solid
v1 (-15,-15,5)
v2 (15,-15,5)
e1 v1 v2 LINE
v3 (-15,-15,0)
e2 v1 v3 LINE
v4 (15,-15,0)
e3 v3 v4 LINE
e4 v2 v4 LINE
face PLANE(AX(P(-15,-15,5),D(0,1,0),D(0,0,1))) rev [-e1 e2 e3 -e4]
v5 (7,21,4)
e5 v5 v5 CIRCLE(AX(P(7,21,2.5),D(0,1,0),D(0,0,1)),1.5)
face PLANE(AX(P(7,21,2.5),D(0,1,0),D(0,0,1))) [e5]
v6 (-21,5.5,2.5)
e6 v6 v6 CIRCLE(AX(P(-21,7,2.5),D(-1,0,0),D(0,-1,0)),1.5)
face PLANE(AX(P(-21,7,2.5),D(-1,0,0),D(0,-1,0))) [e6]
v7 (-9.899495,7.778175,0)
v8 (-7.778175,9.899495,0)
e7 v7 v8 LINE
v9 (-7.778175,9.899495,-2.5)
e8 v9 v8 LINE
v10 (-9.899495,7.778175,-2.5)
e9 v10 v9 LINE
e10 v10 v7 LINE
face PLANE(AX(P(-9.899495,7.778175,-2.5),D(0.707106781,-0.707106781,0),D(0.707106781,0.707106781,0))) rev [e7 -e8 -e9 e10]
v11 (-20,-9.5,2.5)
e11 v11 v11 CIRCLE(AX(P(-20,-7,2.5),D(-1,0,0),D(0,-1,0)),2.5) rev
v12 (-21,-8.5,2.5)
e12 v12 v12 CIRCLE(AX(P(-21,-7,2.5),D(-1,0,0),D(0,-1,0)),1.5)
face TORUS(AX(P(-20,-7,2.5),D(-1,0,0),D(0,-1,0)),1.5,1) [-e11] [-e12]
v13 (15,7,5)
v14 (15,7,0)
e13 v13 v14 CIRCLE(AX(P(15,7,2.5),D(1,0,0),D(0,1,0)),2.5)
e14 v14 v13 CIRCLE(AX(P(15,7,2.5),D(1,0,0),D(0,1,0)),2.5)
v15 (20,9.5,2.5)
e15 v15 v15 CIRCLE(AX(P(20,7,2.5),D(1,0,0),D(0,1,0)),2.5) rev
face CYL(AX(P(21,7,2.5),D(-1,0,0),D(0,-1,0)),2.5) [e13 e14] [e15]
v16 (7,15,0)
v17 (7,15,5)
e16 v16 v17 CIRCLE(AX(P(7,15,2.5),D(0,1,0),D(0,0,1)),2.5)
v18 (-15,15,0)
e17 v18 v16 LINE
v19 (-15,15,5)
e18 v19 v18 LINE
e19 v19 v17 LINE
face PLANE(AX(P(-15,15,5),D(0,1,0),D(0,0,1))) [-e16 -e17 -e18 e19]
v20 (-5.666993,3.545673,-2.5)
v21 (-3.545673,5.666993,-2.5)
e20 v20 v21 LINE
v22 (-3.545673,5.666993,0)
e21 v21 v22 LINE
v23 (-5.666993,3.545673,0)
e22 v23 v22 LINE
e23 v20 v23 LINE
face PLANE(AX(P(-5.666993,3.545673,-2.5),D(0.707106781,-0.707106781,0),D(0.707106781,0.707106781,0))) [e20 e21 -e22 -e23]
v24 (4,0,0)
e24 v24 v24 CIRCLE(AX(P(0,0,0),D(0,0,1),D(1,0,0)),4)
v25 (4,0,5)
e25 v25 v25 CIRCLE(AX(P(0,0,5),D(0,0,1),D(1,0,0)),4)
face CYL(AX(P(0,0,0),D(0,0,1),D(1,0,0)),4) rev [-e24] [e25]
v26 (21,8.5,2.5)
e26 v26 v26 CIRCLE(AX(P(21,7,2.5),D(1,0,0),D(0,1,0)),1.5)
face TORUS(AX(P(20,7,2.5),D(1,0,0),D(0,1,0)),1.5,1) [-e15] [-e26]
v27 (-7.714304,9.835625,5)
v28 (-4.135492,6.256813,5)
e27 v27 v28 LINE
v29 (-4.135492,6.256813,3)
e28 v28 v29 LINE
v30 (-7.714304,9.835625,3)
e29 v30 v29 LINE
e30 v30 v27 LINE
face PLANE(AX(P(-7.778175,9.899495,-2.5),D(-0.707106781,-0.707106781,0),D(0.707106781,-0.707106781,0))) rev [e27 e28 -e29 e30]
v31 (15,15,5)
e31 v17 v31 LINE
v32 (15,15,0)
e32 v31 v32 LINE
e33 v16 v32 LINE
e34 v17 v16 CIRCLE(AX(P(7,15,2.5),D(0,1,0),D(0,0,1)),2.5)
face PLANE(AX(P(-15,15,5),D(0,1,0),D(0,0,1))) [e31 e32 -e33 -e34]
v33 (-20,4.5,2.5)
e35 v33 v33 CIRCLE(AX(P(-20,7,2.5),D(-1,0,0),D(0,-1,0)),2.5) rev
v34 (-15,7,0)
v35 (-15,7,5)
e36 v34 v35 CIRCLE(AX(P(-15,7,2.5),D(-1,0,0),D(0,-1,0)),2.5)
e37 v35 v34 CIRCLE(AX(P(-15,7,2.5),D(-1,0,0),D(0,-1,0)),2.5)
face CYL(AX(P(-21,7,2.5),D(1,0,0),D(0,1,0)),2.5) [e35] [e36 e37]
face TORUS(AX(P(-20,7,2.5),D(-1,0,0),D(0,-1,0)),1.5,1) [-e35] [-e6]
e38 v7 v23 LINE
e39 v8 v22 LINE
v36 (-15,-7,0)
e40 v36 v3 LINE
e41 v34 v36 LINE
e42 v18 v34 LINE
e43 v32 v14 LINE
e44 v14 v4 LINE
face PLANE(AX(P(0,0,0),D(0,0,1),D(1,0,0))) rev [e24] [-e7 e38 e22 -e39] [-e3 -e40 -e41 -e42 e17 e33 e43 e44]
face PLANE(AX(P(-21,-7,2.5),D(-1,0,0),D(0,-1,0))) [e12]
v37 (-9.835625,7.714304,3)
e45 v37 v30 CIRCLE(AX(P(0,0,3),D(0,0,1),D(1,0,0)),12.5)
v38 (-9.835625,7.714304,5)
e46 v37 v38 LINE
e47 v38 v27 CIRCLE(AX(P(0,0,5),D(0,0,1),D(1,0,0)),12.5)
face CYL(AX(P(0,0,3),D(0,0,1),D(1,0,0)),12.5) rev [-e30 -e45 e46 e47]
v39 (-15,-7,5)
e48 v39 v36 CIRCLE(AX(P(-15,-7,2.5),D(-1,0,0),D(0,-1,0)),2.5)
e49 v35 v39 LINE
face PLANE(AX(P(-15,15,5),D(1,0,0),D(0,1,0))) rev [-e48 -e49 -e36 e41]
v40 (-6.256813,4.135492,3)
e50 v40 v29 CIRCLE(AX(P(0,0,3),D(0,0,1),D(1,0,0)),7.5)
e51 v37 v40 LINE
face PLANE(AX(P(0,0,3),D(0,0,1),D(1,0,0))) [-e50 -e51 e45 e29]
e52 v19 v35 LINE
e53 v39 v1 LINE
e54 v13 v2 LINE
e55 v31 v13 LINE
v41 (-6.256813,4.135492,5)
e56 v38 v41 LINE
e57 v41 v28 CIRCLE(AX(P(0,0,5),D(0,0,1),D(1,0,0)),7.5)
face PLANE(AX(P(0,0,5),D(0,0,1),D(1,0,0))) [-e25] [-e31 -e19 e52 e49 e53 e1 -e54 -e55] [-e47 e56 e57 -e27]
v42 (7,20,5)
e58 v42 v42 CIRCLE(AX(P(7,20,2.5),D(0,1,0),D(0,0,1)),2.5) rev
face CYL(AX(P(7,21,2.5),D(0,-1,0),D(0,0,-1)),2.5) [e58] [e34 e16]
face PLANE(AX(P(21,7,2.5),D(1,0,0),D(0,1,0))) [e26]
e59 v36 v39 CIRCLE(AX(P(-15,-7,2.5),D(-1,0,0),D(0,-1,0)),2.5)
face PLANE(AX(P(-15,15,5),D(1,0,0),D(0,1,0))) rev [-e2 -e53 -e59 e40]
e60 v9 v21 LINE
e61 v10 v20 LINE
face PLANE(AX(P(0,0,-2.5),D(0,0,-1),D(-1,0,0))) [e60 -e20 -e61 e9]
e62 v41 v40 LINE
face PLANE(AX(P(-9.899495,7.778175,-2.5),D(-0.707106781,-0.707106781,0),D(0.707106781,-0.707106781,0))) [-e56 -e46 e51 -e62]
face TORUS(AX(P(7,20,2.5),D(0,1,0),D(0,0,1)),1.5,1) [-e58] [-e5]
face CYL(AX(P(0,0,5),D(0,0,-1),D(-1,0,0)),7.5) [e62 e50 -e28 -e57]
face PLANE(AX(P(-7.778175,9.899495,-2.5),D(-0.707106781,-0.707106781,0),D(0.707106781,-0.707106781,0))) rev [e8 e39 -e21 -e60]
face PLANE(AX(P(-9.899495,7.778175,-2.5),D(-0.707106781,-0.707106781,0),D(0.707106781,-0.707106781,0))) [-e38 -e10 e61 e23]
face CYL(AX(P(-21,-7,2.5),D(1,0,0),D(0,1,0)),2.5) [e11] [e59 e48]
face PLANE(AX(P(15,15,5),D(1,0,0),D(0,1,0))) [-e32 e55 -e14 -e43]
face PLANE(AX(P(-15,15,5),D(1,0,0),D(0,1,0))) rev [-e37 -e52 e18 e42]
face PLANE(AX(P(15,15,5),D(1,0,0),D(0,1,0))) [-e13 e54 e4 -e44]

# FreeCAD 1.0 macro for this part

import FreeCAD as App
import Part
import Sketcher

V = App.Vector
Q = App.Units.Quantity


def edges_at(feature, points):
    """Names of the edges that pass closest to the given points."""
    edges = feature.Shape.Edges
    near = lambda p: min(range(len(edges)), key=lambda i: edges[i].distToShape(Part.Vertex(*p))[0])
    return sorted({f"Edge{near(p) + 1}" for p in points})


def add_polygon(sketch, points):
    """Adds a closed chain of lines whose ends are joined by coincident constraints."""
    first, n = sketch.GeometryCount, len(points)
    for a, b in zip(points, points[1:] + points[:1]):
        sketch.addGeometry(Part.LineSegment(App.Vector(*a, 0), App.Vector(*b, 0)), False)
    for i in range(n):
        sketch.addConstraint(Sketcher.Constraint("Coincident", first + i, 2, first + (i + 1) % n, 1))

doc = App.newDocument("Part")
body = doc.addObject("PartDesign::Body", "Body")

# Sketch on XY plane
sketch1 = body.newObject("Sketcher::SketchObject", "Sketch")
sketch1.AttachmentSupport = (doc.getObject("XY_Plane"), [""])
sketch1.MapMode = "FlatFace"
add_polygon(sketch1, [(-15, 15), (-15, -15), (15, -15), (15, 15)])  # lines 0-3
sketch1.addConstraint([
    Sketcher.Constraint("Vertical", 0),
    Sketcher.Constraint("Horizontal", 1),
    Sketcher.Constraint("Vertical", 2),
    Sketcher.Constraint("Horizontal", 3),
    Sketcher.Constraint("Symmetric", 0, 2, 2, 2, -1, 1),
    Sketcher.Constraint("Equal", 3, 0),
    Sketcher.Constraint("DistanceX", 1, 1, 1, 2, 30.0),
])
pad1 = body.newObject("PartDesign::Pad", "Pad")
pad1.Profile = sketch1
pad1.Length = 5

# Sketch on YZ plane
sketch2 = body.newObject("Sketcher::SketchObject", "Sketch001")
sketch2.AttachmentSupport = (doc.getObject("YZ_Plane"), [""])
sketch2.MapMode = "FlatFace"
sketch2.AttachmentOffset = App.Placement(V(0, 0, -15), App.Rotation())
sketch2.addGeometry([
    Part.Circle(V(7, 2.5, 0), V(0, 0, 1), 2.5),
    Part.Circle(V(-7, 2.5, 0), V(0, 0, 1), 2.5),
], False)
sketch2.addConstraint([
    Sketcher.Constraint("Equal", 0, 1),
    Sketcher.Constraint("Symmetric", 0, 3, 1, 3, -2),
    Sketcher.Constraint("Diameter", 0, 5.0),
    Sketcher.Constraint("DistanceX", -1, 1, 0, 3, 7.0),
    Sketcher.Constraint("DistanceY", -1, 1, 0, 3, 2.5),
])
pad2 = body.newObject("PartDesign::Pad", "Pad001")
pad2.Profile = sketch2
pad2.Length = 6
pad2.Reversed = True
doc.recompute()

fillet = body.newObject("PartDesign::Fillet", "Fillet")
fillet.Base = (pad2, edges_at(pad2, [(-21, 7, 0), (-21, -7, 0)]))
fillet.Radius = 1

# Sketch on YZ plane
sketch3 = body.newObject("Sketcher::SketchObject", "Sketch002")
sketch3.AttachmentSupport = (doc.getObject("YZ_Plane"), [""])
sketch3.MapMode = "FlatFace"
sketch3.AttachmentOffset = App.Placement(V(0, 0, 15), App.Rotation())
sketch3.addGeometry(Part.Circle(V(7, 2.5, 0), V(0, 0, 1), 2.5), False)
sketch3.addConstraint([
    Sketcher.Constraint("Diameter", 0, 5.0),
    Sketcher.Constraint("DistanceX", -1, 1, 0, 3, 7.0),
    Sketcher.Constraint("DistanceY", -1, 1, 0, 3, 2.5),
])
pad3 = body.newObject("PartDesign::Pad", "Pad002")
pad3.Profile = sketch3
pad3.Length = 6
doc.recompute()

fillet2 = body.newObject("PartDesign::Fillet", "Fillet001")
fillet2.Base = (pad3, edges_at(pad3, [(21, 7, 5)]))
fillet2.Radius = 1

# Sketch on XY plane
sketch4 = body.newObject("Sketcher::SketchObject", "Sketch003")
sketch4.AttachmentSupport = (doc.getObject("XY_Plane"), [""])
sketch4.MapMode = "FlatFace"
sketch4.AttachmentOffset = App.Placement(V(0, 0, 5), App.Rotation())
sketch4.addGeometry(Part.Circle(V(0, 0, 0), V(0, 0, 1), 12), False)
sketch4.addConstraint([
    Sketcher.Constraint("Coincident", 0, 3, -1, 1),
    Sketcher.Constraint("Diameter", 0, 25.0),
])
pocket1 = body.newObject("PartDesign::Pocket", "Pocket")
pocket1.Profile = sketch4
pocket1.Length = 2

# Sketch on XY plane
sketch5 = body.newObject("Sketcher::SketchObject", "Sketch004")
sketch5.AttachmentSupport = (doc.getObject("XY_Plane"), [""])
sketch5.MapMode = "FlatFace"
sketch5.AttachmentOffset = App.Placement(V(0, 0, 3), App.Rotation())
sketch5.addGeometry(Part.Circle(V(0, 0, 0), V(0, 0, 1), 8), False)
sketch5.addConstraint([
    Sketcher.Constraint("Coincident", 0, 3, -1, 1),
    Sketcher.Constraint("Diameter", 0, 15.0),
])
pad4 = body.newObject("PartDesign::Pad", "Pad003")
pad4.Profile = sketch5
pad4.Length = 2

# Sketch on XY plane
sketch6 = body.newObject("Sketcher::SketchObject", "Sketch005")
sketch6.AttachmentSupport = (doc.getObject("XY_Plane"), [""])
sketch6.MapMode = "FlatFace"
sketch6.AttachmentOffset = App.Placement(V(0, 0, 5), App.Rotation())
sketch6.addGeometry(Part.Circle(V(0, 0, 0), V(0, 0, 1), 4), False)
sketch6.addConstraint([
    Sketcher.Constraint("Coincident", 0, 3, -1, 1),
    Sketcher.Constraint("Diameter", 0, 8.0),
])
pocket2 = body.newObject("PartDesign::Pocket", "Pocket001")
pocket2.Profile = sketch6
pocket2.Type = "ThroughAll"

# Sketch on XZ plane
sketch7 = body.newObject("Sketcher::SketchObject", "Sketch006")
sketch7.AttachmentSupport = (doc.getObject("XZ_Plane"), [""])
sketch7.MapMode = "FlatFace"
sketch7.AttachmentOffset = App.Placement(V(0, 0, -15), App.Rotation())
sketch7.addGeometry(Part.Circle(V(7, 2.5, 0), V(0, 0, 1), 2.5), False)
sketch7.addConstraint([
    Sketcher.Constraint("Diameter", 0, 5.0),
    Sketcher.Constraint("DistanceX", -1, 1, 0, 3, 7.0),
    Sketcher.Constraint("DistanceY", -1, 1, 0, 3, 2.5),
])
pad5 = body.newObject("PartDesign::Pad", "Pad004")
pad5.Profile = sketch7
pad5.Length = 6
pad5.Reversed = True
doc.recompute()

fillet3 = body.newObject("PartDesign::Fillet", "Fillet002")
fillet3.Base = (pad5, edges_at(pad5, [(4.5, 21, 2.5)]))
fillet3.Radius = 1

# Sketch on XY plane
sketch8 = body.newObject("Sketcher::SketchObject", "Sketch007")
sketch8.AttachmentSupport = (doc.getObject("XY_Plane"), [""])
sketch8.MapMode = "FlatFace"
sketch8.AttachmentOffset = App.Placement(V(0, 0, 3), App.Rotation())
add_polygon(sketch8, [(-7.8, 9.9), (-9.9, 7.8), (-5.7, 3.5), (-3.5, 5.7)])  # lines 0-3
sketch8.addConstraint([
    Sketcher.Constraint("Perpendicular", 0, 1),
    Sketcher.Constraint("Perpendicular", 1, 2),
    Sketcher.Constraint("Perpendicular", 2, 3),
    Sketcher.Constraint("Angle", 0, Q("-135 deg")),
    Sketcher.Constraint("Distance", 0, 3.0),
    Sketcher.Constraint("DistanceX", 0, 2, 1, 2, 4.232502),
    Sketcher.Constraint("DistanceX", 0, 2, -1, 1, 9.899495),
    Sketcher.Constraint("DistanceY", -1, 1, 0, 2, 7.778175),
])
pad6 = body.newObject("PartDesign::Pad", "Pad005")
pad6.Profile = sketch8
pad6.Type = "TwoLengths"
pad6.Length = 2
pad6.Length2 = 5.5

doc.recompute()
